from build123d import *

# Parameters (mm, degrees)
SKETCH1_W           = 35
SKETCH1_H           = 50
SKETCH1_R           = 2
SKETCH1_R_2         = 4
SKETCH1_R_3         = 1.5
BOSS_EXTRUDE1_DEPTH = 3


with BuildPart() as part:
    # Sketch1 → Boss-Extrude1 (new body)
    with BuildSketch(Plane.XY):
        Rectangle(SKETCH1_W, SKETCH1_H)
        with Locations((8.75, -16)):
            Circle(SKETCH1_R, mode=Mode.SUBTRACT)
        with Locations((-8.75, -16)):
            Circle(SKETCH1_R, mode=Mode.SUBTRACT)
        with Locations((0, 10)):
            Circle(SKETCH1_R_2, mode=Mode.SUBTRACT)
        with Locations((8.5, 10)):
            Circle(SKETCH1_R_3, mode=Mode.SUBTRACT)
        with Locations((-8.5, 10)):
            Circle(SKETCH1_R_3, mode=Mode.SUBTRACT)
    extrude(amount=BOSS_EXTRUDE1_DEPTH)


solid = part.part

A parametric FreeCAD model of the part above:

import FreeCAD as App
import Part
import Sketcher
from FreeCAD import Vector


def add_polygon(sketch, points):
    """Adds a closed chain of lines whose ends are joined by coincident constraints."""
    first, n = sketch.GeometryCount, len(points)
    for a, b in zip(points, points[1:] + points[:1]):
        sketch.addGeometry(Part.LineSegment(App.Vector(*a, 0), App.Vector(*b, 0)), False)
    for i in range(n):
        sketch.addConstraint(Sketcher.Constraint("Coincident", first + i, 2, first + (i + 1) % n, 1))

doc = App.newDocument("Part")
body = doc.addObject("PartDesign::Body", "Body")

# Sketch on XY plane
sketch1 = body.newObject("Sketcher::SketchObject", "Sketch")
sketch1.AttachmentSupport = (doc.getObject("XY_Plane"), [""])
sketch1.MapMode = "FlatFace"
add_polygon(sketch1, [(-17.5, 25), (-17.5, -25), (17.5, -25), (17.5, 25)])  # lines 0-3
sketch1.addGeometry(Part.Circle(Vector(-8.8, -16, 0), Vector(0, 0, 1), 2), False)  # 4
sketch1.addGeometry(Part.Circle(Vector(8.8, -16, 0), Vector(0, 0, 1), 2), False)  # 5
sketch1.addGeometry(Part.Circle(Vector(-8.5, 10, 0), Vector(0, 0, 1), 1.5), False)  # 6
sketch1.addGeometry(Part.Circle(Vector(0, 10, 0), Vector(0, 0, 1), 4), False)  # 7
sketch1.addGeometry(Part.Circle(Vector(8.5, 10, 0), Vector(0, 0, 1), 1.5), False)  # 8
sketch1.addConstraint([
    Sketcher.Constraint("Vertical", 0),
    Sketcher.Constraint("Horizontal", 1),
    Sketcher.Constraint("Vertical", 2),
    Sketcher.Constraint("Horizontal", 3),
    Sketcher.Constraint("Equal", 4, 5),
    Sketcher.Constraint("Equal", 6, 8),
    Sketcher.Constraint("Symmetric", 0, 2, 2, 2, -1, 1),
    Sketcher.Constraint("Symmetric", 4, 3, 5, 3, -2),
    Sketcher.Constraint("Symmetric", 6, 3, 8, 3, -2),
    Sketcher.Constraint("PointOnObject", 7, 3, -2),
    Sketcher.Constraint("Horizontal", 6, 3, 7, 3),
    Sketcher.Constraint("Diameter", 4, 4.0),
    Sketcher.Constraint("Diameter", 6, 3.0),
    Sketcher.Constraint("Diameter", 7, 8.0),
    Sketcher.Constraint("DistanceX", 1, 1, 1, 2, 35.0),
    Sketcher.Constraint("DistanceY", 0, 2, 0, 1, 50.0),
    Sketcher.Constraint("DistanceY", 4, 3, -1, 1, 16.0),
    Sketcher.Constraint("DistanceY", -1, 1, 6, 3, 10.0),
    Sketcher.Constraint("DistanceX", 6, 3, 8, 3, 17.0),
    Sketcher.Constraint("DistanceX", 4, 3, 5, 3, 17.5),
])
pad1 = body.newObject("PartDesign::Pad", "Pad")
pad1.Profile = sketch1
pad1.Length = 3

doc.recompute()
